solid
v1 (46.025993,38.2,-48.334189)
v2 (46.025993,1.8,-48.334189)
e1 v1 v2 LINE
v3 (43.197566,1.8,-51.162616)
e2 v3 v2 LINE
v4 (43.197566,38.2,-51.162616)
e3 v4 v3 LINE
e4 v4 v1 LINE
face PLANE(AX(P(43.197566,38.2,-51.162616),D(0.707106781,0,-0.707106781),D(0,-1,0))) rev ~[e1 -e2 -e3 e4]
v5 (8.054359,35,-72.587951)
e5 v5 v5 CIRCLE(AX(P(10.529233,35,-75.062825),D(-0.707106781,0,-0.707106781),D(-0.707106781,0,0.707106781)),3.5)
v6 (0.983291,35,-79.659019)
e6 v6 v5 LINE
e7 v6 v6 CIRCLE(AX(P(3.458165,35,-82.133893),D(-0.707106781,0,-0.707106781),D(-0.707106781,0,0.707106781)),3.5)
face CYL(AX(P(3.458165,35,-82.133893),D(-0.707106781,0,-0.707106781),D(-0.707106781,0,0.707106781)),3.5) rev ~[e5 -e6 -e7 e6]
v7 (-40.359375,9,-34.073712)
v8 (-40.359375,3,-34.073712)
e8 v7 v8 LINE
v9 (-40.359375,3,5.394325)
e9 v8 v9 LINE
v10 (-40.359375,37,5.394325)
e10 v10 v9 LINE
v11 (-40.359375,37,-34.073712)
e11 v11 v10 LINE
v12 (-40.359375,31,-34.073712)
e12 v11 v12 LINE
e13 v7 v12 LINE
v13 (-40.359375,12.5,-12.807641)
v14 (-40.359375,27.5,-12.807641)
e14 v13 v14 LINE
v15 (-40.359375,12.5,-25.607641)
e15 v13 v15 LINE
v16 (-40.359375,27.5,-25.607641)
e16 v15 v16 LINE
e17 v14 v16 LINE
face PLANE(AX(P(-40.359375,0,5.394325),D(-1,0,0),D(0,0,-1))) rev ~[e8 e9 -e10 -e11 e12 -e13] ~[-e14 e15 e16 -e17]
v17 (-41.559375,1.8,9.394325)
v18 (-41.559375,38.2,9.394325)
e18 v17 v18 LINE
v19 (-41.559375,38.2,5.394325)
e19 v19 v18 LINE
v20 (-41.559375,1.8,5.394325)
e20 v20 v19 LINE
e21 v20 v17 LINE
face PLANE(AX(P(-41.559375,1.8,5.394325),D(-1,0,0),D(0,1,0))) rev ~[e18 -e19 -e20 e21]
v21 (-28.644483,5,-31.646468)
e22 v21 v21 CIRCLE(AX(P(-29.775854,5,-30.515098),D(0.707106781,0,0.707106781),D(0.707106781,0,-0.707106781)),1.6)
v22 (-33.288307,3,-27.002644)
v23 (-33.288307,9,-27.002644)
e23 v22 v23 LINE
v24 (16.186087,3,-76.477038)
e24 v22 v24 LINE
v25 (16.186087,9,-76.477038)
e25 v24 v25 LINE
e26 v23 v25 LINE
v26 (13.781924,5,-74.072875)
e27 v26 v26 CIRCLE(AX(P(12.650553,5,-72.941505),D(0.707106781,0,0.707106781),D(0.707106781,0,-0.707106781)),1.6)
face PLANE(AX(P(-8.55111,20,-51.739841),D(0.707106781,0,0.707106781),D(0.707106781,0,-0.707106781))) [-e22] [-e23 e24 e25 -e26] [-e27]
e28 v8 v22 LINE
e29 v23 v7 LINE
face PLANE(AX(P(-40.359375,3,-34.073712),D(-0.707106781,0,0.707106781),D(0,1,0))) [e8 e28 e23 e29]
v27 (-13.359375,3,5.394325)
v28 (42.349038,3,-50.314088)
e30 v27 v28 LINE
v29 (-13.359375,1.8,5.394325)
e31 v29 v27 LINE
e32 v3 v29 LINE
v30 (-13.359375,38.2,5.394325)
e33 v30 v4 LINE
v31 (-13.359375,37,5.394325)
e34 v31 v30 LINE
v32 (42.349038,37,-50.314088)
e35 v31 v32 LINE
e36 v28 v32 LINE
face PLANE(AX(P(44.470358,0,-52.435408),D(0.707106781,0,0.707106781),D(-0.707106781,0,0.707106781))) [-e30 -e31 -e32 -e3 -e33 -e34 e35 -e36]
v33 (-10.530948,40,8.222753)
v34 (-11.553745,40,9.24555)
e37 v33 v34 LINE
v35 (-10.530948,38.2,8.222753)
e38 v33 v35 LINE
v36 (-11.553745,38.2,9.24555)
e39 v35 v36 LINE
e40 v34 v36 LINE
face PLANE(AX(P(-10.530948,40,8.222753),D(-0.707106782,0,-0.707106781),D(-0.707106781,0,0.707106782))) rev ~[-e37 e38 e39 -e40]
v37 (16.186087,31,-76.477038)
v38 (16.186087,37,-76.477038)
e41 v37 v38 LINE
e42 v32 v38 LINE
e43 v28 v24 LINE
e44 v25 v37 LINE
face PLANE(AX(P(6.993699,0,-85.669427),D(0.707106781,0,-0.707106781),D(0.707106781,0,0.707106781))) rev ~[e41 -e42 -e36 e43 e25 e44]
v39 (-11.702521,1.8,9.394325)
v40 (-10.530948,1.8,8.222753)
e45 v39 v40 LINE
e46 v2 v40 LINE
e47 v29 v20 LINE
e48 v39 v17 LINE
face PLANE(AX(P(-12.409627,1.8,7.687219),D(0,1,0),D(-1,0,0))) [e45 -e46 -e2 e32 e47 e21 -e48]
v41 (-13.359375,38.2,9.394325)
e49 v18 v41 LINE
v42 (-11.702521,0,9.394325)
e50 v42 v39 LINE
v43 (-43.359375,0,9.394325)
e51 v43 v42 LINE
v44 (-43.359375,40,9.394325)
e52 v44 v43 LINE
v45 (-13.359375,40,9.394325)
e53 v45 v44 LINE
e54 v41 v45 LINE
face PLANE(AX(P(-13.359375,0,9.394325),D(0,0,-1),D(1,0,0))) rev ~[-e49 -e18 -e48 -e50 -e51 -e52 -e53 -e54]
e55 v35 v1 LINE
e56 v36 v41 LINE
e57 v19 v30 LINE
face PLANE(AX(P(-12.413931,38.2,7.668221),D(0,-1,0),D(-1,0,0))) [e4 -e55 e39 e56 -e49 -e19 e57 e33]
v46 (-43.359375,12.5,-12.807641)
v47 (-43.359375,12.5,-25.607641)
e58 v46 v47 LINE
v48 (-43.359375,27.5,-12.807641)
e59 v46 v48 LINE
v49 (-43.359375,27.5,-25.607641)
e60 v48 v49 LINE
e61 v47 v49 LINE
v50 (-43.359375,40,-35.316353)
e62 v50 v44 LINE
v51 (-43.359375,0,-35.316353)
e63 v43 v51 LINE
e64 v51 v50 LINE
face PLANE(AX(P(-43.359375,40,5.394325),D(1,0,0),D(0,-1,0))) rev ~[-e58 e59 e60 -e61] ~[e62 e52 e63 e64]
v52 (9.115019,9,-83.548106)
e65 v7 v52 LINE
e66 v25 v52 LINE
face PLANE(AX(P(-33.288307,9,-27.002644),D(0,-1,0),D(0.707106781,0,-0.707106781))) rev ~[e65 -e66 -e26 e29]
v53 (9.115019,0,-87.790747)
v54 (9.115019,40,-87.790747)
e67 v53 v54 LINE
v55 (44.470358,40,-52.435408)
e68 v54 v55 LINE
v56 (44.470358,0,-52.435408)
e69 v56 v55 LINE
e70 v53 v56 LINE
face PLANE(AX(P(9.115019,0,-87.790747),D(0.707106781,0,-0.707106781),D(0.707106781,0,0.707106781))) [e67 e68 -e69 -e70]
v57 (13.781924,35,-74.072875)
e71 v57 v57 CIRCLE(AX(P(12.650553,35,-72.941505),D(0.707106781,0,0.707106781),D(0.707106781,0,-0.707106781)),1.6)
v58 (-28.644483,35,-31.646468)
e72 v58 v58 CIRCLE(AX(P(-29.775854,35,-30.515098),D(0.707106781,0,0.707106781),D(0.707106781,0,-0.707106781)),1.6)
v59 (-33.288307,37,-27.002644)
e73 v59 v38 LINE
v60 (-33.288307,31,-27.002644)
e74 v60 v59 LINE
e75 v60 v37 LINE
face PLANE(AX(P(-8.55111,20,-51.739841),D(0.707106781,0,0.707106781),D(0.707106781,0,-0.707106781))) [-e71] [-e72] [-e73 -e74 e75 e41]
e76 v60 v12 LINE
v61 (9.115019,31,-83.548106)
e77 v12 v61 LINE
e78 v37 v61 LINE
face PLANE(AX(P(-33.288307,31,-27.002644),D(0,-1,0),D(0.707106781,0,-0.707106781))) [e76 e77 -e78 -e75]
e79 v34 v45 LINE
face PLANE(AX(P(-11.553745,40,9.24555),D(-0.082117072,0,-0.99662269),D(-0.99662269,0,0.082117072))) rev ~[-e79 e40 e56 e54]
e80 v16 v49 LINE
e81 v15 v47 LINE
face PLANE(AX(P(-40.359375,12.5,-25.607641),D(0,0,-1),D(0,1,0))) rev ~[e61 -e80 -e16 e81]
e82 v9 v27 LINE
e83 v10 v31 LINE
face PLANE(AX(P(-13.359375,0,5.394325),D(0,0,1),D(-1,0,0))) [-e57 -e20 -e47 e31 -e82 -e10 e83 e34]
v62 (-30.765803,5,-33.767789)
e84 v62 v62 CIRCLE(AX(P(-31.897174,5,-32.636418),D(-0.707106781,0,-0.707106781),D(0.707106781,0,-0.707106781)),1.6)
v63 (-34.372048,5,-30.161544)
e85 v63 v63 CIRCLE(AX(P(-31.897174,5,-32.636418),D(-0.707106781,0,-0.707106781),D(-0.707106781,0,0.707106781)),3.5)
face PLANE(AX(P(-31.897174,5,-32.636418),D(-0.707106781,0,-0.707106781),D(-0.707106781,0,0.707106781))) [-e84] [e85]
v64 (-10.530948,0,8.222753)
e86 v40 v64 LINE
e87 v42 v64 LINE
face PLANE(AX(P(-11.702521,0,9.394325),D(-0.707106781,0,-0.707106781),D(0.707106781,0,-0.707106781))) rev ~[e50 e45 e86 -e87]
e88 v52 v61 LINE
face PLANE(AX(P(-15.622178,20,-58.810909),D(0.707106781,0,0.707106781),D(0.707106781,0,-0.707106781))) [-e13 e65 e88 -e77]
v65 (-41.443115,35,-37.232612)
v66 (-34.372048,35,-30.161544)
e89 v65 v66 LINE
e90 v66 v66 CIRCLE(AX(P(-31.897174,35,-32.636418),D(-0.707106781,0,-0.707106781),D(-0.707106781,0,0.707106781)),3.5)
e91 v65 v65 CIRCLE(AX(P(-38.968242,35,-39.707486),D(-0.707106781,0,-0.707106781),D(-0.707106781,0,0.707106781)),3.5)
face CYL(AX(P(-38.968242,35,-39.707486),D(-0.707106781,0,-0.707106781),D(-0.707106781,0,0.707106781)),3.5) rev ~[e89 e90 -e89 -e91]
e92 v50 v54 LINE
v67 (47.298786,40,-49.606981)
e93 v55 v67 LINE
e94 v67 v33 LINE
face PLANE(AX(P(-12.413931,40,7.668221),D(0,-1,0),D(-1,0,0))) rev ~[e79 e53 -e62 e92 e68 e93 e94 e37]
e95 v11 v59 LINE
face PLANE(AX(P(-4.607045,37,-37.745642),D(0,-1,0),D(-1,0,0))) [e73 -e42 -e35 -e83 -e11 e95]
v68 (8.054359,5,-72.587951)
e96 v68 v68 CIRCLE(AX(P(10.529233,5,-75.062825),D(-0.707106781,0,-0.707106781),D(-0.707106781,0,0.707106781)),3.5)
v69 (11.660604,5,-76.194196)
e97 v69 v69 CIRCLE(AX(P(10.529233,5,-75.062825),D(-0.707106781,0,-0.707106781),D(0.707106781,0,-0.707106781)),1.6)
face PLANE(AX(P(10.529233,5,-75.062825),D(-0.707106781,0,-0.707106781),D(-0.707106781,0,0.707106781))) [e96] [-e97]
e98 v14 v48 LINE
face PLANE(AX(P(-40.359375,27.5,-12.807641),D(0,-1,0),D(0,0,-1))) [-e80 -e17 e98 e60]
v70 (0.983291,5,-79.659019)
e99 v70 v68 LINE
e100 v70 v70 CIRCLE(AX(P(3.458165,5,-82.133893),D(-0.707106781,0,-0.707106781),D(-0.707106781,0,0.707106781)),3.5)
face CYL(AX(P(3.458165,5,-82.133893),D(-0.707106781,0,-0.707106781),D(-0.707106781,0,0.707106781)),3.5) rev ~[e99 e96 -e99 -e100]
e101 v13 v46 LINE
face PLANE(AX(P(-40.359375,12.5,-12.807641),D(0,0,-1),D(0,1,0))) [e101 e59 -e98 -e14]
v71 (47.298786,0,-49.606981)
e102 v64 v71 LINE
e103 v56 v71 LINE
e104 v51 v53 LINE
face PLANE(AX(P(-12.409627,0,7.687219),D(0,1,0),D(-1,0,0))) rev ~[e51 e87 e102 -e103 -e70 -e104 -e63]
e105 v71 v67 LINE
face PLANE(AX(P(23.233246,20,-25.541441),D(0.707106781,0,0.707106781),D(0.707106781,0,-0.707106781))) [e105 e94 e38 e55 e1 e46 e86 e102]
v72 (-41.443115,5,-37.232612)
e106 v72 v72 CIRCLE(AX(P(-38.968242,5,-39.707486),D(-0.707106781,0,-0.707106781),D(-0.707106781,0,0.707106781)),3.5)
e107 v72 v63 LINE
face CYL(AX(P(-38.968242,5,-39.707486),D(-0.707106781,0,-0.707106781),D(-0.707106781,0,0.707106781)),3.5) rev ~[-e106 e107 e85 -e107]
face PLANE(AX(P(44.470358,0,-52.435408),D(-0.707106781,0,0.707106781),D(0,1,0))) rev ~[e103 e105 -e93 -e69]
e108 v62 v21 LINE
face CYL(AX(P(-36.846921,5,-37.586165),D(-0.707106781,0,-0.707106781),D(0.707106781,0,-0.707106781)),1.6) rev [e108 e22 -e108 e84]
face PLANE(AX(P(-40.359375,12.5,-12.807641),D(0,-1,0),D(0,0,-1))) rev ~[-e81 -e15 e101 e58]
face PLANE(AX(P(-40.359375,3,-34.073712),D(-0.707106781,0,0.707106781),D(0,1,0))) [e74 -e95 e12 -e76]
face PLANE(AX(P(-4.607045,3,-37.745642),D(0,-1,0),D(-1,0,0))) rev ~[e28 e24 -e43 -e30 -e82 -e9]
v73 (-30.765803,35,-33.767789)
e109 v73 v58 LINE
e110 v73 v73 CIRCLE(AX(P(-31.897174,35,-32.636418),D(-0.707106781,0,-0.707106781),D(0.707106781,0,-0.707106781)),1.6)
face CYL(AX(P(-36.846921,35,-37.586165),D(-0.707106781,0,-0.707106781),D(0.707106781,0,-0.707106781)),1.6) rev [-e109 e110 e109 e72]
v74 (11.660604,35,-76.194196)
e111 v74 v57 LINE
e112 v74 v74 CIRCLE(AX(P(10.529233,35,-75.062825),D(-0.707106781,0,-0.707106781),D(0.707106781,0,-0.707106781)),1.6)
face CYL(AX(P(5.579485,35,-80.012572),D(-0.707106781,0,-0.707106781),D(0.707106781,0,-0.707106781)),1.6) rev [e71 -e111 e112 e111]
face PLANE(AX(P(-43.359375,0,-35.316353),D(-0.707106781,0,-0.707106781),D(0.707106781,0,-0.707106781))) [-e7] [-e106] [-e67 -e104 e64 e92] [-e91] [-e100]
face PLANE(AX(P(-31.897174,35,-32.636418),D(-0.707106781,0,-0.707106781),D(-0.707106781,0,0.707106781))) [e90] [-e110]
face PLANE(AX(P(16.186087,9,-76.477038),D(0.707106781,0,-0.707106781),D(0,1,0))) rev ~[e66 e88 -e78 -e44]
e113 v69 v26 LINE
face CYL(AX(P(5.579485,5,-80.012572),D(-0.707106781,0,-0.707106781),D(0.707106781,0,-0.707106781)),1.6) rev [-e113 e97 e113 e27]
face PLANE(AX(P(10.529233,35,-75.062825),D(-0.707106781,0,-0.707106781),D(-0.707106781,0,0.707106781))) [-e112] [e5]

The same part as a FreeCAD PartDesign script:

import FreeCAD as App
import Part
import Sketcher
Q = App.Units.Quantity


def faces_at(feature, points):
    """Names of the faces that lie closest to the given points."""
    faces = feature.Shape.Faces
    near = lambda p: min(range(len(faces)), key=lambda i: faces[i].distToShape(Part.Vertex(*p))[0])
    return sorted({f"Face{near(p) + 1}" for p in points})

doc = App.newDocument("Part")
params = doc.addObject("Spreadsheet::Sheet", "Params")
for row, (alias, value) in enumerate([
    ("sketch1_width", "30 mm"),
    ("sketch1_length", "50 mm"),
    ("sketch1_length2", "74.21 mm"),
    ("pad1_length", "40 mm"),
    ("thickness_wall", "3 mm"),
    ("sketch2_height", "40 mm"),
    ("sketch2_height2", "36.4 mm"),
    ("pad2_length", "4 mm"),
    ("sketch3_width", "30 mm"),
    ("sketch3_height", "40 mm"),
    ("sketch3_width2", "28.2 mm"),
    ("sketch3_height2", "36.4 mm"),
    ("pad3_length", "4 mm"),
    ("sketch4_height", "4 mm"),
    ("sketch4_length", "4 mm"),
    ("pad4_length", "1.8 mm"),
    ("sketch5_height", "4 mm"),
    ("sketch5_length", "4 mm"),
    ("pad5_length", "1.8 mm"),
    ("sketch6_diameter", "3.3 mm"),
    ("sketch7_width", "15 mm"),
    ("sketch7_height", "12.8 mm"),
    ("pocket2_length", "3 mm"),
    ("sketch8_diameter", "3.2 mm"),
    ("sketch8_height", "34 mm"),
    ("pad6_length", "10 mm"),
    ("sketch9_diameter", "7 mm"),
    ("pocket3_length", "10 mm"),
    ("sketch10_height", "22 mm"),
    ("pocket4_length", "10 mm"),
], start=1):
    params.set(f"A{row}", alias)
    params.set(f"B{row}", "=" + value)
    params.setAlias(f"B{row}", alias)

body = doc.addObject("PartDesign::Body", "Body")

sketch1 = body.newObject("Sketcher::SketchObject", "Sketch")
sketch1.AttachmentSupport = (doc.getObject("XZ_Plane"), [""])
sketch1.MapMode = "FlatFace"
sketch1.addGeometry(Part.LineSegment(App.Vector(-43.359375, -35.316353, 0), App.Vector(-43.359375, 5.394325, 0)), False)
sketch1.addGeometry(Part.LineSegment(App.Vector(-43.359375, 5.394325, 0), App.Vector(-13.359375, 5.394325, 0)), False)
sketch1.addGeometry(Part.LineSegment(App.Vector(-13.359375, 5.394325, 0), App.Vector(44.470358, -52.435408, 0)), False)
sketch1.addGeometry(Part.LineSegment(App.Vector(44.470358, -52.435408, 0), App.Vector(9.115019, -87.790747, 0)), False)
sketch1.addGeometry(Part.LineSegment(App.Vector(9.115019, -87.790747, 0), App.Vector(-43.359375, -35.316353, 0)), False)
sketch1.addConstraint(Sketcher.Constraint("Coincident", 0, 2, 1, 1))
sketch1.addConstraint(Sketcher.Constraint("Coincident", 1, 2, 2, 1))
sketch1.addConstraint(Sketcher.Constraint("Coincident", 2, 2, 3, 1))
sketch1.addConstraint(Sketcher.Constraint("Coincident", 3, 2, 4, 1))
sketch1.addConstraint(Sketcher.Constraint("Coincident", 4, 2, 0, 1))
sketch1.addConstraint(Sketcher.Constraint("Vertical", 0))
sketch1.addConstraint(Sketcher.Constraint("Horizontal", 1))
sketch1.addConstraint(Sketcher.Constraint("Perpendicular", 2, 3))
sketch1.addConstraint(Sketcher.Constraint("Perpendicular", 3, 4))
sketch1.addConstraint(Sketcher.Constraint("DistanceX", 1, 1, 1, 2, Q("30 mm")))
sketch1.addConstraint(Sketcher.Constraint("Angle", 2, Q("-45 deg")))
sketch1.addConstraint(Sketcher.Constraint("Distance", 3, Q("50 mm")))
sketch1.addConstraint(Sketcher.Constraint("Distance", 4, Q("74.21 mm")))
sketch1.addConstraint(Sketcher.Constraint("DistanceX", -1, 1, 2, 2, Q("44.470358 mm")))
sketch1.addConstraint(Sketcher.Constraint("DistanceY", -1, 1, 0, 2, Q("5.394325 mm")))
sketch1.setExpression("Constraints[9]", "Params.sketch1_width")
sketch1.setExpression("Constraints[11]", "Params.sketch1_length")
sketch1.setExpression("Constraints[12]", "Params.sketch1_length2")
pad1 = body.newObject("PartDesign::Pad", "Pad")
pad1.Profile = sketch1
pad1.setExpression("Length", "Params.pad1_length")
pad1.Reversed = True
doc.recompute()

thickness = body.newObject("PartDesign::Thickness", "Thickness")
thickness.Base = (pad1, faces_at(pad1, [(15.555, 20, -23.521), (-28.359, 20, 5.394)]))
thickness.setExpression("Value", "Params.thickness_wall")
thickness.Reversed = True
thickness.Join = "Intersection"

sketch2 = body.newObject("Sketcher::SketchObject", "Sketch001")
sketch2.Placement = App.Placement(App.Vector(-3.982525, 0, -3.982525), App.Rotation(App.Vector(0.707106781, 0, -0.707106781), App.Vector(0, 0.999999999, 0), App.Vector(0.707106781, 0, 0.707106781), "ZXY"))
sketch2.addGeometry(Part.LineSegment(App.Vector(-13.260869, 38.2, 0), App.Vector(66.722724, 38.2, 0)), False)
sketch2.addGeometry(Part.LineSegment(App.Vector(66.722724, 38.2, 0), App.Vector(66.722724, 1.8, 0)), False)
sketch2.addGeometry(Part.LineSegment(App.Vector(66.722724, 1.8, 0), App.Vector(-13.260869, 1.8, 0)), False)
sketch2.addGeometry(Part.LineSegment(App.Vector(-13.260869, 1.8, 0), App.Vector(-13.260869, 0, 0)), False)
sketch2.addGeometry(Part.LineSegment(App.Vector(-13.260869, 0, 0), App.Vector(68.522724, 0, 0)), False)
sketch2.addGeometry(Part.LineSegment(App.Vector(68.522724, 0, 0), App.Vector(68.522724, 40, 0)), False)
sketch2.addGeometry(Part.LineSegment(App.Vector(68.522724, 40, 0), App.Vector(-13.260869, 40, 0)), False)
sketch2.addGeometry(Part.LineSegment(App.Vector(-13.260869, 40, 0), App.Vector(-13.260869, 38.2, 0)), False)
sketch2.addConstraint(Sketcher.Constraint("Coincident", 0, 2, 1, 1))
sketch2.addConstraint(Sketcher.Constraint("Coincident", 1, 2, 2, 1))
sketch2.addConstraint(Sketcher.Constraint("Coincident", 2, 2, 3, 1))
sketch2.addConstraint(Sketcher.Constraint("Coincident", 3, 2, 4, 1))
sketch2.addConstraint(Sketcher.Constraint("Coincident", 4, 2, 5, 1))
sketch2.addConstraint(Sketcher.Constraint("Coincident", 5, 2, 6, 1))
sketch2.addConstraint(Sketcher.Constraint("Coincident", 6, 2, 7, 1))
sketch2.addConstraint(Sketcher.Constraint("Coincident", 7, 2, 0, 1))
sketch2.addConstraint(Sketcher.Constraint("Horizontal", 0))
sketch2.addConstraint(Sketcher.Constraint("Vertical", 1))
sketch2.addConstraint(Sketcher.Constraint("Horizontal", 2))
sketch2.addConstraint(Sketcher.Constraint("Vertical", 3))
sketch2.addConstraint(Sketcher.Constraint("Horizontal", 4))
sketch2.addConstraint(Sketcher.Constraint("Vertical", 5))
sketch2.addConstraint(Sketcher.Constraint("Horizontal", 6))
sketch2.addConstraint(Sketcher.Constraint("Vertical", 7))
sketch2.addConstraint(Sketcher.Constraint("PointOnObject", 3, 2, -1))
sketch2.addConstraint(Sketcher.Constraint("Vertical", 3, 2, 6, 2))
sketch2.addConstraint(Sketcher.Constraint("Equal", 3, 7))
sketch2.addConstraint(Sketcher.Constraint("DistanceY", 5, 1, 5, 2, Q("40 mm")))
sketch2.addConstraint(Sketcher.Constraint("DistanceY", 1, 2, 1, 1, Q("36.4 mm")))
sketch2.addConstraint(Sketcher.Constraint("DistanceX", 1, 2, 4, 2, Q("1.8 mm")))
sketch2.addConstraint(Sketcher.Constraint("DistanceX", 0, 1, 0, 2, Q("79.983593 mm")))
sketch2.addConstraint(Sketcher.Constraint("DistanceX", 2, 2, -1, 1, Q("13.260869 mm")))
sketch2.setExpression("Constraints[19]", "Params.sketch2_height")
sketch2.setExpression("Constraints[20]", "Params.sketch2_height2")
pad2 = body.newObject("PartDesign::Pad", "Pad001")
pad2.Profile = sketch2
pad2.setExpression("Length", "Params.pad2_length")

sketch3 = body.newObject("Sketcher::SketchObject", "Sketch002")
sketch3.AttachmentSupport = (doc.getObject("XY_Plane"), [""])
sketch3.MapMode = "FlatFace"
sketch3.AttachmentOffset = App.Placement(App.Vector(0, 0, 5.394325), App.Rotation())
sketch3.addGeometry(Part.LineSegment(App.Vector(-13.359375, 1.8, 0), App.Vector(-41.559375, 1.8, 0)), False)
sketch3.addGeometry(Part.LineSegment(App.Vector(-41.559375, 1.8, 0), App.Vector(-41.559375, 38.2, 0)), False)
sketch3.addGeometry(Part.LineSegment(App.Vector(-41.559375, 38.2, 0), App.Vector(-13.359375, 38.2, 0)), False)
sketch3.addGeometry(Part.LineSegment(App.Vector(-13.359375, 38.2, 0), App.Vector(-13.359375, 40, 0)), False)
sketch3.addGeometry(Part.LineSegment(App.Vector(-13.359375, 40, 0), App.Vector(-43.359375, 40, 0)), False)
sketch3.addGeometry(Part.LineSegment(App.Vector(-43.359375, 40, 0), App.Vector(-43.359375, 0, 0)), False)
sketch3.addGeometry(Part.LineSegment(App.Vector(-43.359375, 0, 0), App.Vector(-13.359375, 0, 0)), False)
sketch3.addGeometry(Part.LineSegment(App.Vector(-13.359375, 0, 0), App.Vector(-13.359375, 1.8, 0)), False)
sketch3.addConstraint(Sketcher.Constraint("Coincident", 0, 2, 1, 1))
sketch3.addConstraint(Sketcher.Constraint("Coincident", 1, 2, 2, 1))
sketch3.addConstraint(Sketcher.Constraint("Coincident", 2, 2, 3, 1))
sketch3.addConstraint(Sketcher.Constraint("Coincident", 3, 2, 4, 1))
sketch3.addConstraint(Sketcher.Constraint("Coincident", 4, 2, 5, 1))
sketch3.addConstraint(Sketcher.Constraint("Coincident", 5, 2, 6, 1))
sketch3.addConstraint(Sketcher.Constraint("Coincident", 6, 2, 7, 1))
sketch3.addConstraint(Sketcher.Constraint("Coincident", 7, 2, 0, 1))
sketch3.addConstraint(Sketcher.Constraint("Horizontal", 0))
sketch3.addConstraint(Sketcher.Constraint("Vertical", 1))
sketch3.addConstraint(Sketcher.Constraint("Horizontal", 2))
sketch3.addConstraint(Sketcher.Constraint("Vertical", 3))
sketch3.addConstraint(Sketcher.Constraint("Horizontal", 4))
sketch3.addConstraint(Sketcher.Constraint("Vertical", 5))
sketch3.addConstraint(Sketcher.Constraint("Horizontal", 6))
sketch3.addConstraint(Sketcher.Constraint("Vertical", 7))
sketch3.addConstraint(Sketcher.Constraint("PointOnObject", 5, 2, -1))
sketch3.addConstraint(Sketcher.Constraint("Vertical", 3, 2, 6, 2))
sketch3.addConstraint(Sketcher.Constraint("Equal", 3, 7))
sketch3.addConstraint(Sketcher.Constraint("DistanceX", 4, 2, 4, 1, Q("30 mm")))
sketch3.addConstraint(Sketcher.Constraint("DistanceY", 5, 2, 5, 1, Q("40 mm")))
sketch3.addConstraint(Sketcher.Constraint("DistanceX", 0, 2, 0, 1, Q("28.2 mm")))
sketch3.addConstraint(Sketcher.Constraint("DistanceY", 1, 1, 1, 2, Q("36.4 mm")))
sketch3.addConstraint(Sketcher.Constraint("DistanceX", 0, 2, -1, 1, Q("41.559375 mm")))
sketch3.setExpression("Constraints[19]", "Params.sketch3_width")
sketch3.setExpression("Constraints[20]", "Params.sketch3_height")
sketch3.setExpression("Constraints[21]", "Params.sketch3_width2")
sketch3.setExpression("Constraints[22]", "Params.sketch3_height2")
pad3 = body.newObject("PartDesign::Pad", "Pad002")
pad3.Profile = sketch3
pad3.setExpression("Length", "Params.pad3_length")

sketch4 = body.newObject("Sketcher::SketchObject", "Sketch003")
sketch4.AttachmentSupport = (doc.getObject("XZ_Plane"), [""])
sketch4.MapMode = "FlatFace"
sketch4.addGeometry(Part.LineSegment(App.Vector(-11.702521, 9.394325, 0), App.Vector(-13.359375, 9.394325, 0)), False)
sketch4.addGeometry(Part.LineSegment(App.Vector(-13.359375, 9.394325, 0), App.Vector(-13.359375, 5.394325, 0)), False)
sketch4.addGeometry(Part.LineSegment(App.Vector(-13.359375, 5.394325, 0), App.Vector(-10.530948, 8.222753, 0)), False)
sketch4.addGeometry(Part.LineSegment(App.Vector(-10.530948, 8.222753, 0), App.Vector(-11.702521, 9.394325, 0)), False)
sketch4.addConstraint(Sketcher.Constraint("Coincident", 0, 2, 1, 1))
sketch4.addConstraint(Sketcher.Constraint("Coincident", 1, 2, 2, 1))
sketch4.addConstraint(Sketcher.Constraint("Coincident", 2, 2, 3, 1))
sketch4.addConstraint(Sketcher.Constraint("Coincident", 3, 2, 0, 1))
sketch4.addConstraint(Sketcher.Constraint("Horizontal", 0))
sketch4.addConstraint(Sketcher.Constraint("Vertical", 1))
sketch4.addConstraint(Sketcher.Constraint("Perpendicular", 2, 3))
sketch4.addConstraint(Sketcher.Constraint("DistanceY", 1, 2, 1, 1, Q("4 mm")))
sketch4.addConstraint(Sketcher.Constraint("Angle", 2, Q("45 deg")))
sketch4.addConstraint(Sketcher.Constraint("Distance", 2, Q("4 mm")))
sketch4.addConstraint(Sketcher.Constraint("DistanceX", 3, 2, -1, 1, Q("11.702521 mm")))
sketch4.addConstraint(Sketcher.Constraint("DistanceY", -1, 1, 0, 2, Q("9.394325 mm")))
sketch4.setExpression("Constraints[7]", "Params.sketch4_height")
sketch4.setExpression("Constraints[9]", "Params.sketch4_length")
pad4 = body.newObject("PartDesign::Pad", "Pad003")
pad4.Profile = sketch4
pad4.setExpression("Length", "Params.pad4_length")
pad4.Reversed = True

sketch5 = body.newObject("Sketcher::SketchObject", "Sketch004")
sketch5.AttachmentSupport = (doc.getObject("XZ_Plane"), [""])
sketch5.MapMode = "FlatFace"
sketch5.AttachmentOffset = App.Placement(App.Vector(0, 0, -40), App.Rotation())
sketch5.addGeometry(Part.LineSegment(App.Vector(-10.530948, 8.222753, 0), App.Vector(-13.359375, 5.394325, 0)), False)
sketch5.addGeometry(Part.LineSegment(App.Vector(-13.359375, 5.394325, 0), App.Vector(-13.359375, 9.394325, 0)), False)
sketch5.addGeometry(Part.LineSegment(App.Vector(-13.359375, 9.394325, 0), App.Vector(-11.553745, 9.24555, 0)), False)
sketch5.addGeometry(Part.LineSegment(App.Vector(-11.553745, 9.24555, 0), App.Vector(-10.530948, 8.222753, 0)), False)
sketch5.addConstraint(Sketcher.Constraint("Coincident", 0, 2, 1, 1))
sketch5.addConstraint(Sketcher.Constraint("Coincident", 1, 2, 2, 1))
sketch5.addConstraint(Sketcher.Constraint("Coincident", 2, 2, 3, 1))
sketch5.addConstraint(Sketcher.Constraint("Coincident", 3, 2, 0, 1))
sketch5.addConstraint(Sketcher.Constraint("Vertical", 1))
sketch5.addConstraint(Sketcher.Constraint("Perpendicular", 0, 3))
sketch5.addConstraint(Sketcher.Constraint("DistanceY", 1, 1, 1, 2, Q("4 mm")))
sketch5.addConstraint(Sketcher.Constraint("Angle", 0, Q("-135 deg")))
sketch5.addConstraint(Sketcher.Constraint("Distance", 0, Q("4 mm")))
sketch5.addConstraint(Sketcher.Constraint("Distance", 2, Q("1.811749 mm")))
sketch5.addConstraint(Sketcher.Constraint("DistanceY", -1, 1, 2, 2, Q("9.24555 mm")))
sketch5.addConstraint(Sketcher.Constraint("DistanceX", 0, 2, -1, 1, Q("13.359375 mm")))
sketch5.setExpression("Constraints[6]", "Params.sketch5_height")
sketch5.setExpression("Constraints[8]", "Params.sketch5_length")
pad5 = body.newObject("PartDesign::Pad", "Pad004")
pad5.Profile = sketch5
pad5.setExpression("Length", "Params.pad5_length")

sketch6 = body.newObject("Sketcher::SketchObject", "Sketch005")
sketch6.Placement = App.Placement(App.Vector(-37.216543, 0, -37.216543), App.Rotation(App.Vector(0.707106781, 0, -0.707106781), App.Vector(0, 0.999999999, 0), App.Vector(0.707106781, 0, 0.707106781), "ZXY"))
sketch6.addGeometry(Part.Circle(App.Vector(60.522724, 35, 0), App.Vector(0, 0, 1), 1.65), False)
sketch6.addGeometry(Part.Circle(App.Vector(60.522724, 5, 0), App.Vector(0, 0, 1), 1.65), False)
sketch6.addGeometry(Part.Circle(App.Vector(0.522724, 35, 0), App.Vector(0, 0, 1), 1.65), False)
sketch6.addGeometry(Part.Circle(App.Vector(0.522724, 5, 0), App.Vector(0, 0, 1), 1.65), False)
sketch6.addConstraint(Sketcher.Constraint("Equal", 0, 1))
sketch6.addConstraint(Sketcher.Constraint("Equal", 1, 2))
sketch6.addConstraint(Sketcher.Constraint("Equal", 2, 3))
sketch6.addConstraint(Sketcher.Constraint("Horizontal", 0, 3, 2, 3))
sketch6.addConstraint(Sketcher.Constraint("Horizontal", 1, 3, 3, 3))
sketch6.addConstraint(Sketcher.Constraint("Vertical", 0, 3, 1, 3))
sketch6.addConstraint(Sketcher.Constraint("Vertical", 2, 3, 3, 3))
sketch6.addConstraint(Sketcher.Constraint("Diameter", 0, Q("3.3 mm")))
sketch6.addConstraint(Sketcher.Constraint("DistanceY", -1, 1, 0, 3, Q("35 mm")))
sketch6.addConstraint(Sketcher.Constraint("DistanceY", -1, 1, 1, 3, Q("5 mm")))
sketch6.addConstraint(Sketcher.Constraint("DistanceX", 2, 3, 0, 3, Q("60 mm")))
sketch6.addConstraint(Sketcher.Constraint("DistanceX", -1, 1, 0, 3, Q("60.522724 mm")))
sketch6.setExpression("Constraints[7]", "Params.sketch6_diameter")
pocket1 = body.newObject("PartDesign::Pocket", "Pocket")
pocket1.Profile = sketch6
pocket1.Type = "ThroughAll"

sketch7 = body.newObject("Sketcher::SketchObject", "Sketch006")
sketch7.AttachmentSupport = (doc.getObject("YZ_Plane"), [""])
sketch7.MapMode = "FlatFace"
sketch7.AttachmentOffset = App.Placement(App.Vector(0, 0, -40.359375), App.Rotation())
sketch7.addGeometry(Part.LineSegment(App.Vector(27.5, -12.807641, 0), App.Vector(12.5, -12.807641, 0)), False)
sketch7.addGeometry(Part.LineSegment(App.Vector(12.5, -12.807641, 0), App.Vector(12.5, -25.607641, 0)), False)
sketch7.addGeometry(Part.LineSegment(App.Vector(12.5, -25.607641, 0), App.Vector(27.5, -25.607641, 0)), False)
sketch7.addGeometry(Part.LineSegment(App.Vector(27.5, -25.607641, 0), App.Vector(27.5, -12.807641, 0)), False)
sketch7.addConstraint(Sketcher.Constraint("Coincident", 0, 2, 1, 1))
sketch7.addConstraint(Sketcher.Constraint("Coincident", 1, 2, 2, 1))
sketch7.addConstraint(Sketcher.Constraint("Coincident", 2, 2, 3, 1))
sketch7.addConstraint(Sketcher.Constraint("Coincident", 3, 2, 0, 1))
sketch7.addConstraint(Sketcher.Constraint("Horizontal", 0))
sketch7.addConstraint(Sketcher.Constraint("Vertical", 1))
sketch7.addConstraint(Sketcher.Constraint("Horizontal", 2))
sketch7.addConstraint(Sketcher.Constraint("Vertical", 3))
sketch7.addConstraint(Sketcher.Constraint("DistanceX", 0, 2, 0, 1, Q("15 mm")))
sketch7.addConstraint(Sketcher.Constraint("DistanceY", 1, 2, 1, 1, Q("12.8 mm")))
sketch7.addConstraint(Sketcher.Constraint("DistanceX", -1, 1, 0, 2, Q("12.5 mm")))
sketch7.addConstraint(Sketcher.Constraint("DistanceY", 0, 2, -1, 1, Q("12.807641 mm")))
sketch7.setExpression("Constraints[8]", "Params.sketch7_width")
sketch7.setExpression("Constraints[9]", "Params.sketch7_height")
pocket2 = body.newObject("PartDesign::Pocket", "Pocket001")
pocket2.Profile = sketch7
pocket2.setExpression("Length", "Params.pocket2_length")

sketch8 = body.newObject("Sketcher::SketchObject", "Sketch007")
sketch8.Placement = App.Placement(App.Vector(-37.216543, 0, -37.216543), App.Rotation(App.Vector(0.707106781, 0, -0.707106781), App.Vector(0, 0.999999999, 0), App.Vector(0.707106781, 0, 0.707106781), "ZXY"))
sketch8.addGeometry(Part.LineSegment(App.Vector(-4.444635, 37, 0), App.Vector(-4.444635, 3, 0)), False)
sketch8.addGeometry(Part.LineSegment(App.Vector(-4.444635, 3, 0), App.Vector(65.522724, 3, 0)), False)
sketch8.addGeometry(Part.LineSegment(App.Vector(65.522724, 3, 0), App.Vector(65.522724, 37, 0)), False)
sketch8.addGeometry(Part.LineSegment(App.Vector(65.522724, 37, 0), App.Vector(-4.444635, 37, 0)), False)
sketch8.addGeometry(Part.Circle(App.Vector(0.522724, 5, 0), App.Vector(0, 0, 1), 1.6), False)
sketch8.addGeometry(Part.Circle(App.Vector(60.522724, 5, 0), App.Vector(0, 0, 1), 1.6), False)
sketch8.addGeometry(Part.Circle(App.Vector(0.522724, 35, 0), App.Vector(0, 0, 1), 1.6), False)
sketch8.addGeometry(Part.Circle(App.Vector(60.522724, 35, 0), App.Vector(0, 0, 1), 1.6), False)
sketch8.addConstraint(Sketcher.Constraint("Coincident", 0, 2, 1, 1))
sketch8.addConstraint(Sketcher.Constraint("Coincident", 1, 2, 2, 1))
sketch8.addConstraint(Sketcher.Constraint("Coincident", 2, 2, 3, 1))
sketch8.addConstraint(Sketcher.Constraint("Coincident", 3, 2, 0, 1))
sketch8.addConstraint(Sketcher.Constraint("Vertical", 0))
sketch8.addConstraint(Sketcher.Constraint("Horizontal", 1))
sketch8.addConstraint(Sketcher.Constraint("Vertical", 2))
sketch8.addConstraint(Sketcher.Constraint("Horizontal", 3))
sketch8.addConstraint(Sketcher.Constraint("Equal", 4, 5))
sketch8.addConstraint(Sketcher.Constraint("Equal", 5, 6))
sketch8.addConstraint(Sketcher.Constraint("Equal", 6, 7))
sketch8.addConstraint(Sketcher.Constraint("Horizontal", 4, 3, 5, 3))
sketch8.addConstraint(Sketcher.Constraint("Horizontal", 6, 3, 7, 3))
sketch8.addConstraint(Sketcher.Constraint("Vertical", 4, 3, 6, 3))
sketch8.addConstraint(Sketcher.Constraint("Vertical", 5, 3, 7, 3))
sketch8.addConstraint(Sketcher.Constraint("Diameter", 4, Q("3.2 mm")))
sketch8.addConstraint(Sketcher.Constraint("DistanceY", 0, 2, 0, 1, Q("34 mm")))
sketch8.addConstraint(Sketcher.Constraint("DistanceY", -1, 1, 4, 3, Q("5 mm")))
sketch8.addConstraint(Sketcher.Constraint("DistanceY", -1, 1, 6, 3, Q("35 mm")))
sketch8.addConstraint(Sketcher.Constraint("DistanceY", -1, 1, 0, 2, Q("3 mm")))
sketch8.addConstraint(Sketcher.Constraint("DistanceX", 4, 3, 5, 3, Q("60 mm")))
sketch8.addConstraint(Sketcher.Constraint("DistanceX", 5, 3, 1, 2, Q("5 mm")))
sketch8.addConstraint(Sketcher.Constraint("DistanceX", 1, 1, 1, 2, Q("69.967359 mm")))
sketch8.addConstraint(Sketcher.Constraint("DistanceX", -1, 1, 4, 3, Q("0.522724 mm")))
sketch8.setExpression("Constraints[15]", "Params.sketch8_diameter")
sketch8.setExpression("Constraints[16]", "Params.sketch8_height")
pad6 = body.newObject("PartDesign::Pad", "Pad005")
pad6.Profile = sketch8
pad6.setExpression("Length", "Params.pad6_length")

sketch9 = body.newObject("Sketcher::SketchObject", "Sketch008")
sketch9.Placement = App.Placement(App.Vector(-39.337864, 0, -39.337864), App.Rotation(App.Vector(-0.707106781, 0, 0.707106781), App.Vector(0, 0.999999999, 0), App.Vector(-0.707106781, 0, -0.707106781), "ZXY"))
sketch9.addGeometry(Part.Circle(App.Vector(-0.522724, 35, 0), App.Vector(0, 0, 1), 3.5), False)
sketch9.addGeometry(Part.Circle(App.Vector(-0.522724, 5, 0), App.Vector(0, 0, 1), 3.5), False)
sketch9.addGeometry(Part.Circle(App.Vector(-60.522724, 5, 0), App.Vector(0, 0, 1), 3.5), False)
sketch9.addGeometry(Part.Circle(App.Vector(-60.522724, 35, 0), App.Vector(0, 0, 1), 3.5), False)
sketch9.addConstraint(Sketcher.Constraint("Equal", 0, 1))
sketch9.addConstraint(Sketcher.Constraint("Equal", 1, 2))
sketch9.addConstraint(Sketcher.Constraint("Equal", 2, 3))
sketch9.addConstraint(Sketcher.Constraint("Horizontal", 1, 3, 2, 3))
sketch9.addConstraint(Sketcher.Constraint("Horizontal", 0, 3, 3, 3))
sketch9.addConstraint(Sketcher.Constraint("Vertical", 0, 3, 1, 3))
sketch9.addConstraint(Sketcher.Constraint("Vertical", 2, 3, 3, 3))
sketch9.addConstraint(Sketcher.Constraint("Diameter", 0, Q("7 mm")))
sketch9.addConstraint(Sketcher.Constraint("DistanceY", -1, 1, 0, 3, Q("35 mm")))
sketch9.addConstraint(Sketcher.Constraint("DistanceY", -1, 1, 1, 3, Q("5 mm")))
sketch9.addConstraint(Sketcher.Constraint("DistanceX", 2, 3, 1, 3, Q("60 mm")))
sketch9.addConstraint(Sketcher.Constraint("DistanceX", 0, 3, -1, 1, Q("0.522724 mm")))
sketch9.setExpression("Constraints[7]", "Params.sketch9_diameter")
pocket3 = body.newObject("PartDesign::Pocket", "Pocket002")
pocket3.Profile = sketch9
pocket3.setExpression("Length", "Params.pocket3_length")

sketch10 = body.newObject("Sketcher::SketchObject", "Sketch009")
sketch10.Placement = App.Placement(App.Vector(-30.145476, 0, -30.145476), App.Rotation(App.Vector(0.707106781, 0, -0.707106781), App.Vector(0, 0.999999999, 0), App.Vector(0.707106781, 0, 0.707106781), "ZXY"))
sketch10.addGeometry(Part.LineSegment(App.Vector(-4.444635, 31, 0), App.Vector(-4.444635, 9, 0)), False)
sketch10.addGeometry(Part.LineSegment(App.Vector(-4.444635, 9, 0), App.Vector(65.522724, 9, 0)), False)
sketch10.addGeometry(Part.LineSegment(App.Vector(65.522724, 9, 0), App.Vector(65.522724, 31, 0)), False)
sketch10.addGeometry(Part.LineSegment(App.Vector(65.522724, 31, 0), App.Vector(-4.444635, 31, 0)), False)
sketch10.addConstraint(Sketcher.Constraint("Coincident", 0, 2, 1, 1))
sketch10.addConstraint(Sketcher.Constraint("Coincident", 1, 2, 2, 1))
sketch10.addConstraint(Sketcher.Constraint("Coincident", 2, 2, 3, 1))
sketch10.addConstraint(Sketcher.Constraint("Coincident", 3, 2, 0, 1))
sketch10.addConstraint(Sketcher.Constraint("Vertical", 0))
sketch10.addConstraint(Sketcher.Constraint("Horizontal", 1))
sketch10.addConstraint(Sketcher.Constraint("Vertical", 2))
sketch10.addConstraint(Sketcher.Constraint("Horizontal", 3))
sketch10.addConstraint(Sketcher.Constraint("DistanceY", 0, 2, 0, 1, Q("22 mm")))
sketch10.addConstraint(Sketcher.Constraint("DistanceY", -1, 1, 0, 2, Q("9 mm")))
sketch10.addConstraint(Sketcher.Constraint("DistanceX", 1, 1, 1, 2, Q("69.967359 mm")))
sketch10.addConstraint(Sketcher.Constraint("DistanceX", 0, 2, -1, 1, Q("4.444635 mm")))
sketch10.setExpression("Constraints[8]", "Params.sketch10_height")
pocket4 = body.newObject("PartDesign::Pocket", "Pocket003")
pocket4.Profile = sketch10
pocket4.setExpression("Length", "Params.pocket4_length")

doc.recompute()
